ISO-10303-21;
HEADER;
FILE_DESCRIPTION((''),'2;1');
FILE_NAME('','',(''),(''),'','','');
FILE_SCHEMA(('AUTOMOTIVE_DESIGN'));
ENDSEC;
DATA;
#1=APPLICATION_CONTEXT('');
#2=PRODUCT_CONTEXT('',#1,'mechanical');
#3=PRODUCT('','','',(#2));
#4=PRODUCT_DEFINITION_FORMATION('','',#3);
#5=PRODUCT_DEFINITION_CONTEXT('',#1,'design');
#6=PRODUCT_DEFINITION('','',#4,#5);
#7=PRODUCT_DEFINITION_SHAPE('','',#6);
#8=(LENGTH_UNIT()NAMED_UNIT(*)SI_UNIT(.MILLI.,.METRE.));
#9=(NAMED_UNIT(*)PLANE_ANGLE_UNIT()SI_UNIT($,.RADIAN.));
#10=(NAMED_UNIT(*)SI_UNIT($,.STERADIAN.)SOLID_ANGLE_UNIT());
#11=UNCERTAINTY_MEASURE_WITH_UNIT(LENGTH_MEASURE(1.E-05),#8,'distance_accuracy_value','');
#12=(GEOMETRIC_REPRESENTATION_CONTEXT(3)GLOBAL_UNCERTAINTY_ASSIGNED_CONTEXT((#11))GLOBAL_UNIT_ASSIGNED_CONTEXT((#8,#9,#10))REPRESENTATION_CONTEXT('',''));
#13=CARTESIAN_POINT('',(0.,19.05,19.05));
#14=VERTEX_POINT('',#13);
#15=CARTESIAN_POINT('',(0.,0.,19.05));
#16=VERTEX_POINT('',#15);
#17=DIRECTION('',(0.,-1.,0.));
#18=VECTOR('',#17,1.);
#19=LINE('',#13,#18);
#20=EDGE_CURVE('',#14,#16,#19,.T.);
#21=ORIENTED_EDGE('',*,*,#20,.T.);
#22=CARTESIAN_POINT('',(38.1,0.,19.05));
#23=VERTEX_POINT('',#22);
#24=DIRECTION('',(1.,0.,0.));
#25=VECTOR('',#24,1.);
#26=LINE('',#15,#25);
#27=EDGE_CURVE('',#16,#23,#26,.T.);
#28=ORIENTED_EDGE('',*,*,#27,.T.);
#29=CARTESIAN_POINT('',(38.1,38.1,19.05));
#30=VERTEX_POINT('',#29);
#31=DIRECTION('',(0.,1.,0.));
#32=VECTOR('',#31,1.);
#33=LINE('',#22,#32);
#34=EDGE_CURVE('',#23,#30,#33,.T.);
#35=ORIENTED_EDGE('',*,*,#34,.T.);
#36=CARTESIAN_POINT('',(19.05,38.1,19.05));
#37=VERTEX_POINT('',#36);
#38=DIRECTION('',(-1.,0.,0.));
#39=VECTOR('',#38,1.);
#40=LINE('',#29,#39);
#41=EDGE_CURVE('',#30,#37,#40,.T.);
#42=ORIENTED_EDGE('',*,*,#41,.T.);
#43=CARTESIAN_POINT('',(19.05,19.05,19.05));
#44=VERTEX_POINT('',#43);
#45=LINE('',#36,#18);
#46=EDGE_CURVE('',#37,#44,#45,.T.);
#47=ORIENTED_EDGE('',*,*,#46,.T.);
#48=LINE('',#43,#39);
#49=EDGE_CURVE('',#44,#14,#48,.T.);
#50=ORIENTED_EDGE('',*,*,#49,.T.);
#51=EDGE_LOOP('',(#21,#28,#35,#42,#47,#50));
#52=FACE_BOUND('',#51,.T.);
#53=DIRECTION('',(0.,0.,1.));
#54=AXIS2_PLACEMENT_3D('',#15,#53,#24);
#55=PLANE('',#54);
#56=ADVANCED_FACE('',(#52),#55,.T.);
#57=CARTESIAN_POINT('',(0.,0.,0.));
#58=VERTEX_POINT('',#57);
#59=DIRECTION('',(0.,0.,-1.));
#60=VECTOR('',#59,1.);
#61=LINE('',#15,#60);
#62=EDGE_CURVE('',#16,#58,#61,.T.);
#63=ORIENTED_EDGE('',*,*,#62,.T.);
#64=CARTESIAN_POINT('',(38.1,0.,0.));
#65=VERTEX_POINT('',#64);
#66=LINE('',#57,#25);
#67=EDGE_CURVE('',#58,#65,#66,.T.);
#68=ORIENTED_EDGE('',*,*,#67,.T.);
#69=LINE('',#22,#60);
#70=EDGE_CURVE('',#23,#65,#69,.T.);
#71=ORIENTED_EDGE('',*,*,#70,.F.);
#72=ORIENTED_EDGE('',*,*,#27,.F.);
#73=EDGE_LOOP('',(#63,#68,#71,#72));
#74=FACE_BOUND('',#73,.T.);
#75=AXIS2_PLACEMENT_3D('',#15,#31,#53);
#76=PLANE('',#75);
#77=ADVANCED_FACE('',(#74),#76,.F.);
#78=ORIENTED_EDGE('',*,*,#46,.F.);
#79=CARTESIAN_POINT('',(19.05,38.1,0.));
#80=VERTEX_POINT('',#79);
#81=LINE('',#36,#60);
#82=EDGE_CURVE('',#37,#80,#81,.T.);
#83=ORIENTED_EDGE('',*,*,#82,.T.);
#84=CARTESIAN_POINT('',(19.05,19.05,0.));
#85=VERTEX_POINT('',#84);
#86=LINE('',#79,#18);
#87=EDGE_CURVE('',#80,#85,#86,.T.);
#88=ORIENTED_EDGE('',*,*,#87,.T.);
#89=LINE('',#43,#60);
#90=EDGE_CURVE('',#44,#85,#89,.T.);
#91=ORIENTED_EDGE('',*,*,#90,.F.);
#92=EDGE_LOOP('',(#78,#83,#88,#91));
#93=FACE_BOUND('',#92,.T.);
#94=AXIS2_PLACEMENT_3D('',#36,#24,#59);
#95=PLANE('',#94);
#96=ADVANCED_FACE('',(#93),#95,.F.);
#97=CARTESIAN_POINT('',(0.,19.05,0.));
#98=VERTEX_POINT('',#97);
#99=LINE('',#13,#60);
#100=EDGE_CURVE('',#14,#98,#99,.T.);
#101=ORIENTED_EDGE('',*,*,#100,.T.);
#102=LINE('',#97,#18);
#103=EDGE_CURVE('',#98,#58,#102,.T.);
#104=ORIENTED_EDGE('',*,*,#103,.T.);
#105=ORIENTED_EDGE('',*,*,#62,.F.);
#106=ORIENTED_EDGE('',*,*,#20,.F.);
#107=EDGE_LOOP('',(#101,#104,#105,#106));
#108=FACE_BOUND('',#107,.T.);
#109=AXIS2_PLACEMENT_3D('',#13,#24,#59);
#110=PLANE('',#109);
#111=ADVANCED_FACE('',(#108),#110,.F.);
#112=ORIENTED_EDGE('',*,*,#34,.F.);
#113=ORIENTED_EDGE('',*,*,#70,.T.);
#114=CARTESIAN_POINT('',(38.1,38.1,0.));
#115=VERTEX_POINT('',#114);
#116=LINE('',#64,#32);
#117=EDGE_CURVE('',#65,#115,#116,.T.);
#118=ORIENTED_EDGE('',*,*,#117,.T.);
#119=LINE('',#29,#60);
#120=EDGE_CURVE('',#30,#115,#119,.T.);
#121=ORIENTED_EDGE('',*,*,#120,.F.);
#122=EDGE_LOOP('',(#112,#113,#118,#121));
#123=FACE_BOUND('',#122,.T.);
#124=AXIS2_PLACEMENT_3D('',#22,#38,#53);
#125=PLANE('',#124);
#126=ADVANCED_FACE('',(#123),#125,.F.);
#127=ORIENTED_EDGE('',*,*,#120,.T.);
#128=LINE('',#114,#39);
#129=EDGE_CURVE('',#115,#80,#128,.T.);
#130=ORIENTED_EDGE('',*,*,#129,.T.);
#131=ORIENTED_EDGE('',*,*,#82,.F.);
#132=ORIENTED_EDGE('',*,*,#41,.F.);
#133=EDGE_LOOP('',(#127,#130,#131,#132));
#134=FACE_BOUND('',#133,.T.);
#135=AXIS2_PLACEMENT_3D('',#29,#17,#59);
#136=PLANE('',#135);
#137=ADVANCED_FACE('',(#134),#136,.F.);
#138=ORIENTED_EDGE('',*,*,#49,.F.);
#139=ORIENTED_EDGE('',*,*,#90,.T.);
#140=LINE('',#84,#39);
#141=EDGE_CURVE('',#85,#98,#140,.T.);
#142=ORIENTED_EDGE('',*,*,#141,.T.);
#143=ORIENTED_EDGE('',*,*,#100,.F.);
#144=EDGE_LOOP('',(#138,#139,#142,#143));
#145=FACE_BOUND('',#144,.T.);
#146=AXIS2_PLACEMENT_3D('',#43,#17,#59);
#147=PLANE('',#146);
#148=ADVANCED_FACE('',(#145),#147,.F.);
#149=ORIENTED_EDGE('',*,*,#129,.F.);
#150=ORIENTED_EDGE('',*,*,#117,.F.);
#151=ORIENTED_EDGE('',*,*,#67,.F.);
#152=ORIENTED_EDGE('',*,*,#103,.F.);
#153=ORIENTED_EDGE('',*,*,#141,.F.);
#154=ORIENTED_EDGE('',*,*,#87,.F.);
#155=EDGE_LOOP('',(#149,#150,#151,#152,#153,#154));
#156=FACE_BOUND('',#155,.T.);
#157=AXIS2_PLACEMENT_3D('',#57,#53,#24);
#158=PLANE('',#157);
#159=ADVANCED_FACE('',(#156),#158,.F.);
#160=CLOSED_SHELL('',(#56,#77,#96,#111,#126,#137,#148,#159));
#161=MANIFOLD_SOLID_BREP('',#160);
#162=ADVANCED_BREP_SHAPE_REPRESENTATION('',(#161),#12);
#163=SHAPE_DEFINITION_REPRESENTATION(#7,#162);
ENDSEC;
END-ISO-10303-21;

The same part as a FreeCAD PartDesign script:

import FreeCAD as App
import Part
import Sketcher
from FreeCAD import Vector
Q = App.Units.Quantity

doc = App.newDocument("Part")
body = doc.addObject("PartDesign::Body", "Body")

# Sketch on XY plane
sketch1 = body.newObject("Sketcher::SketchObject", "Sketch")
sketch1.AttachmentSupport = (doc.getObject("XY_Plane"), [""])
sketch1.MapMode = "FlatFace"
sketch1.addGeometry([
    Part.LineSegment(Vector(0, 0, 0), Vector(38, 0, 0)),  # 0
    Part.LineSegment(Vector(38, 0, 0), Vector(38, 38, 0)),  # 1
    Part.LineSegment(Vector(38, 38, 0), Vector(19, 38, 0)),  # 2
    Part.LineSegment(Vector(19, 38, 0), Vector(19, 19, 0)),  # 3
    Part.LineSegment(Vector(19, 19, 0), Vector(0, 19, 0)),  # 4
    Part.LineSegment(Vector(0, 19, 0), Vector(0, 0, 0)),  # 5
], False)
sketch1.addConstraint([
    Sketcher.Constraint("Coincident", 0, 2, 1, 1),
    Sketcher.Constraint("Coincident", 1, 2, 2, 1),
    Sketcher.Constraint("Coincident", 2, 2, 3, 1),
    Sketcher.Constraint("Coincident", 3, 2, 4, 1),
    Sketcher.Constraint("Coincident", 4, 2, 5, 1),
    Sketcher.Constraint("Coincident", 5, 2, 0, 1),
    Sketcher.Constraint("Horizontal", 0),
    Sketcher.Constraint("Vertical", 1),
    Sketcher.Constraint("Horizontal", 2),
    Sketcher.Constraint("Vertical", 3),
    Sketcher.Constraint("Horizontal", 4),
    Sketcher.Constraint("Vertical", 5),
    Sketcher.Constraint("Coincident", 5, 2, -1, 1),
    Sketcher.Constraint("Equal", 2, 4),
    Sketcher.Constraint("Equal", 0, 1),
    Sketcher.Constraint("Equal", 4, 3),
    Sketcher.Constraint("DistanceX", 0, 1, 0, 2, Q("1.5 in")),
])
pad1 = body.newObject("PartDesign::Pad", "Pad")
pad1.Profile = sketch1
pad1.Length = Q("0.75 in")

doc.recompute()
